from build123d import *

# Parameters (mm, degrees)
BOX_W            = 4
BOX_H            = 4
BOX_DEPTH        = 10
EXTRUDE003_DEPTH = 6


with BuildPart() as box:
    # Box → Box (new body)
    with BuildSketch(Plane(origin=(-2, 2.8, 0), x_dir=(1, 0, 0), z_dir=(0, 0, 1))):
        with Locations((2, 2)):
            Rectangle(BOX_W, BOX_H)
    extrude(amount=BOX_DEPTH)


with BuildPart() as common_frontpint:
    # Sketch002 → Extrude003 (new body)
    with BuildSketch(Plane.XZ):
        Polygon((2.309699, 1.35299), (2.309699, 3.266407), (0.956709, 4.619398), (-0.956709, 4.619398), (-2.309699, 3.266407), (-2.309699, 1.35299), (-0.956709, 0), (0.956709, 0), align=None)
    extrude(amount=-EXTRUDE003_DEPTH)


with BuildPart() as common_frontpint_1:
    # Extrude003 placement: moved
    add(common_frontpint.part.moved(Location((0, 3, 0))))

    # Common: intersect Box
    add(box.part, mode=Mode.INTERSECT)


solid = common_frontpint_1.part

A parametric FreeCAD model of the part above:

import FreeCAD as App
import Part
import Sketcher
Q = App.Units.Quantity

doc = App.newDocument("Part")
body = doc.addObject("PartDesign::Body", "Body")

# Sketch on XY plane
sketch1 = body.newObject("Sketcher::SketchObject", "Sketch")
sketch1.AttachmentSupport = (doc.getObject("XY_Plane"), [""])
sketch1.MapMode = "FlatFace"
sketch1.addGeometry([
    Part.LineSegment(App.Vector(-2, 6.8, 0), App.Vector(-2, 2.8, 0)),
    Part.LineSegment(App.Vector(-2, 2.8, 0), App.Vector(2, 2.8, 0)),
    Part.LineSegment(App.Vector(2, 2.8, 0), App.Vector(2, 6.8, 0)),
    Part.LineSegment(App.Vector(2, 6.8, 0), App.Vector(-2, 6.8, 0)),
], False)
sketch1.addConstraint([
    Sketcher.Constraint("Coincident", 0, 2, 1, 1),
    Sketcher.Constraint("Coincident", 1, 2, 2, 1),
    Sketcher.Constraint("Coincident", 2, 2, 3, 1),
    Sketcher.Constraint("Coincident", 3, 2, 0, 1),
    Sketcher.Constraint("Vertical", 0),
    Sketcher.Constraint("Horizontal", 1),
    Sketcher.Constraint("Vertical", 2),
    Sketcher.Constraint("Horizontal", 3),
    Sketcher.Constraint("Equal", 3, 0),
    Sketcher.Constraint("DistanceX", 1, 1, 1, 2, Q("4 mm")),
    Sketcher.Constraint("DistanceX", 0, 2, -1, 1, Q("2 mm")),
    Sketcher.Constraint("DistanceY", -1, 1, 0, 2, Q("2.8 mm")),
])
pad1 = body.newObject("PartDesign::Pad", "Pad")
pad1.Profile = sketch1
pad1.Length = 10
body2 = doc.addObject("PartDesign::Body", "Body001")

# Sketch on XZ plane
sketch2 = body2.newObject("Sketcher::SketchObject", "Sketch001")
sketch2.AttachmentSupport = (doc.getObject("XZ_Plane001"), [""])
sketch2.MapMode = "FlatFace"
sketch2.addGeometry([
    Part.LineSegment(App.Vector(2.3, 1.4, 0), App.Vector(2.3, 3.3, 0)),  # 0
    Part.LineSegment(App.Vector(2.3, 3.3, 0), App.Vector(1, 4.6, 0)),  # 1
    Part.LineSegment(App.Vector(1, 4.6, 0), App.Vector(-1, 4.6, 0)),  # 2
    Part.LineSegment(App.Vector(-1, 4.6, 0), App.Vector(-2.3, 3.3, 0)),  # 3
    Part.LineSegment(App.Vector(-2.3, 3.3, 0), App.Vector(-2.3, 1.4, 0)),  # 4
    Part.LineSegment(App.Vector(-2.3, 1.4, 0), App.Vector(-1, 0, 0)),  # 5
    Part.LineSegment(App.Vector(-1, 0, 0), App.Vector(1, 0, 0)),  # 6
    Part.LineSegment(App.Vector(1, 0, 0), App.Vector(2.3, 1.4, 0)),  # 7
], False)
sketch2.addConstraint([
    Sketcher.Constraint("Coincident", 0, 2, 1, 1),
    Sketcher.Constraint("Coincident", 1, 2, 2, 1),
    Sketcher.Constraint("Coincident", 2, 2, 3, 1),
    Sketcher.Constraint("Coincident", 3, 2, 4, 1),
    Sketcher.Constraint("Coincident", 4, 2, 5, 1),
    Sketcher.Constraint("Coincident", 5, 2, 6, 1),
    Sketcher.Constraint("Coincident", 6, 2, 7, 1),
    Sketcher.Constraint("Coincident", 7, 2, 0, 1),
    Sketcher.Constraint("Vertical", 0),
    Sketcher.Constraint("Horizontal", 2),
    Sketcher.Constraint("Vertical", 4),
    Sketcher.Constraint("Horizontal", 6),
    Sketcher.Constraint("Symmetric", 5, 2, 6, 2, -1, 1),
    Sketcher.Constraint("Symmetric", 0, 2, 3, 2, -2),
    Sketcher.Constraint("Perpendicular", 1, 3),
    Sketcher.Constraint("Perpendicular", 3, 5),
    Sketcher.Constraint("Perpendicular", 5, 7),
    Sketcher.Constraint("Horizontal", 4, 2, 7, 2),
    Sketcher.Constraint("Vertical", 2, 2, 5, 2),
    Sketcher.Constraint("Equal", 6, 0),
    Sketcher.Constraint("DistanceX", 2, 2, 2, 1, Q("1.913418 mm")),
    Sketcher.Constraint("DistanceX", -1, 1, 0, 2, Q("2.309699 mm")),
])
pad2 = body2.newObject("PartDesign::Pad", "Pad001")
pad2.Profile = sketch2
pad2.Length = 6
pad2.Reversed = True
body3 = doc.addObject("PartDesign::Body", "Body002")
doc.recompute()

body2.Placement = App.Placement(App.Vector(0, 3, 0), App.Rotation(App.Vector(0, 0, 1), 0))
boolean = body3.newObject("PartDesign::Boolean", "Boolean")
boolean.Type = "Fuse"
boolean.addObjects([body2])
doc.recompute()

boolean2 = body3.newObject("PartDesign::Boolean", "Boolean001")
boolean2.Type = "Common"
boolean2.addObjects([body])

doc.recompute()
